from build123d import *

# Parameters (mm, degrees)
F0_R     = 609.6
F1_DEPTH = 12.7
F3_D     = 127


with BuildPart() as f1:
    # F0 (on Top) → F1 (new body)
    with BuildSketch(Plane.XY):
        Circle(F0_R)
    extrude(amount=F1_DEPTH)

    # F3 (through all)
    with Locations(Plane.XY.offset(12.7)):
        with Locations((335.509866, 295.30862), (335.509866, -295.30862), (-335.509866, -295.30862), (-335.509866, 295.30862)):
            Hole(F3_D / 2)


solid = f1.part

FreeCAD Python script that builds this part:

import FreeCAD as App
import Part
import Sketcher
from FreeCAD import Vector
Q = App.Units.Quantity

doc = App.newDocument("Part")
body = doc.addObject("PartDesign::Body", "Body")

# Sketch on XY plane
sketch1 = body.newObject("Sketcher::SketchObject", "Sketch")
sketch1.AttachmentSupport = (doc.getObject("XY_Plane"), [""])
sketch1.MapMode = "FlatFace"
sketch1.addGeometry(Part.Circle(Vector(0, 0, 0), Vector(0, 0, 1), 610), False)
sketch1.addConstraint(Sketcher.Constraint("Coincident", 0, 3, -1, 1))
sketch1.addConstraint(Sketcher.Constraint("Diameter", 0, Q("48 in")))
pad1 = body.newObject("PartDesign::Pad", "Pad")
pad1.Profile = sketch1
pad1.Length = Q("0.5 in")

# Sketch on XY plane
sketch2 = body.newObject("Sketcher::SketchObject", "Sketch001")
sketch2.AttachmentSupport = (doc.getObject("XY_Plane"), [""])
sketch2.MapMode = "FlatFace"
sketch2.AttachmentOffset = App.Placement(Vector(0, 0, 0.5 * 25.4), App.Rotation())
sketch2.addGeometry(Part.Circle(Vector(336, 295, 0), Vector(0, 0, 1), 64), False)
sketch2.addGeometry(Part.Circle(Vector(336, -295, 0), Vector(0, 0, 1), 64), False)
sketch2.addGeometry(Part.Circle(Vector(-336, -295, 0), Vector(0, 0, 1), 64), False)
sketch2.addGeometry(Part.Circle(Vector(-336, 295, 0), Vector(0, 0, 1), 64), False)
sketch2.addConstraint(Sketcher.Constraint("Equal", 0, 1))
sketch2.addConstraint(Sketcher.Constraint("Equal", 1, 2))
sketch2.addConstraint(Sketcher.Constraint("Equal", 2, 3))
sketch2.addConstraint(Sketcher.Constraint("Symmetric", 0, 3, 2, 3, -1, 1))
sketch2.addConstraint(Sketcher.Constraint("Symmetric", 1, 3, 3, 3, -1, 1))
sketch2.addConstraint(Sketcher.Constraint("Symmetric", 1, 3, 2, 3, -2))
sketch2.addConstraint(Sketcher.Constraint("Diameter", 0, Q("5 in")))
sketch2.addConstraint(Sketcher.Constraint("DistanceY", -1, 1, 0, 3, 295.30862))
sketch2.addConstraint(Sketcher.Constraint("DistanceX", 2, 3, 1, 3, 671.019732))
doc.recompute()
hole = body.newObject("PartDesign::Hole", "Hole")
hole.Profile = sketch2
hole.ThreadType = "None"
hole.Diameter = Q("5 in")
hole.DepthType = "ThroughAll"

doc.recompute()
